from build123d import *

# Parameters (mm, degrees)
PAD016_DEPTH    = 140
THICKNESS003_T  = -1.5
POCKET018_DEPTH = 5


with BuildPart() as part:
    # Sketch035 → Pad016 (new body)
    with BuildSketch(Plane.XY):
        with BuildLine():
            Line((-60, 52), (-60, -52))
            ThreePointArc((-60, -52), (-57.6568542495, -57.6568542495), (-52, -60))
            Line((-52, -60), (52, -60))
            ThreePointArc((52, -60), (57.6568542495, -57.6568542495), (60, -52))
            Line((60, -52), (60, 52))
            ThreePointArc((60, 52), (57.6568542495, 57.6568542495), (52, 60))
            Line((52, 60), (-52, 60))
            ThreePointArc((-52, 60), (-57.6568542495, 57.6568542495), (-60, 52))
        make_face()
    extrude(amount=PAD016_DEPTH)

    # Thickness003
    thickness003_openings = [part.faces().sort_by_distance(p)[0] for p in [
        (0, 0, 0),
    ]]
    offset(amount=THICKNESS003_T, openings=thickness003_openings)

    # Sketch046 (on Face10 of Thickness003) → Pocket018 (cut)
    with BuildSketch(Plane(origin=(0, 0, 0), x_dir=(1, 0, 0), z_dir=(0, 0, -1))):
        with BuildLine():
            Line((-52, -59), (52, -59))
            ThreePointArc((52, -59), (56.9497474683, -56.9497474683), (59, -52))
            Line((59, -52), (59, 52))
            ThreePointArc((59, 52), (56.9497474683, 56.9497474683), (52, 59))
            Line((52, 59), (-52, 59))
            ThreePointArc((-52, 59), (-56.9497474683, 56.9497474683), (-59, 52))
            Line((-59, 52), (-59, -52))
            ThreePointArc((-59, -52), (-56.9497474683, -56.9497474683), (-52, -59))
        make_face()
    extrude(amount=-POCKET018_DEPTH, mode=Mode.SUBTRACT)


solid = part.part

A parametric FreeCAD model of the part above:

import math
import FreeCAD as App
import Part
import Sketcher
Q = App.Units.Quantity


def faces_at(feature, points):
    """Names of the faces that lie closest to the given points."""
    faces = feature.Shape.Faces
    near = lambda p: min(range(len(faces)), key=lambda i: faces[i].distToShape(Part.Vertex(*p))[0])
    return sorted({f"Face{near(p) + 1}" for p in points})

doc = App.newDocument("Part")
params = doc.addObject("Spreadsheet::Sheet", "Params")
for row, (alias, value) in enumerate([
    ("sketch1_radius", "8 mm"),
    ("sketch1_width", "104 mm"),
    ("pad1_length", "140 mm"),
    ("thickness_wall", "1.5 mm"),
    ("sketch2_radius", "7 mm"),
    ("sketch2_width", "104 mm"),
    ("pocket1_length", "5 mm"),
], start=1):
    params.set(f"A{row}", alias)
    params.set(f"B{row}", "=" + value)
    params.setAlias(f"B{row}", alias)

body = doc.addObject("PartDesign::Body", "Body")

# Sketch on XY plane
sketch1 = body.newObject("Sketcher::SketchObject", "Sketch")
sketch1.AttachmentSupport = (doc.getObject("XY_Plane"), [""])
sketch1.MapMode = "FlatFace"
sketch1.addGeometry([
    Part.LineSegment(App.Vector(-60, 52, 0), App.Vector(-60, -52, 0)),  # 0
    Part.ArcOfCircle(Part.Circle(App.Vector(-52, -52, 0), App.Vector(0, 0, 1), 8), math.radians(180), math.radians(270)),  # 1
    Part.LineSegment(App.Vector(-52, -60, 0), App.Vector(52, -60, 0)),  # 2
    Part.ArcOfCircle(Part.Circle(App.Vector(52, -52, 0), App.Vector(0, 0, 1), 8), math.radians(-90), math.radians(0)),  # 3
    Part.LineSegment(App.Vector(60, -52, 0), App.Vector(60, 52, 0)),  # 4
    Part.ArcOfCircle(Part.Circle(App.Vector(52, 52, 0), App.Vector(0, 0, 1), 8), math.radians(0), math.radians(90)),  # 5
    Part.LineSegment(App.Vector(52, 60, 0), App.Vector(-52, 60, 0)),  # 6
    Part.ArcOfCircle(Part.Circle(App.Vector(-52, 52, 0), App.Vector(0, 0, 1), 8), math.radians(90), math.radians(180)),  # 7
], False)
sketch1.addConstraint([
    Sketcher.Constraint("Tangent", 0, 2, 1, 1),
    Sketcher.Constraint("Tangent", 1, 2, 2, 1),
    Sketcher.Constraint("Tangent", 2, 2, 3, 1),
    Sketcher.Constraint("Tangent", 3, 2, 4, 1),
    Sketcher.Constraint("Tangent", 4, 2, 5, 1),
    Sketcher.Constraint("Tangent", 5, 2, 6, 1),
    Sketcher.Constraint("Tangent", 6, 2, 7, 1),
    Sketcher.Constraint("Tangent", 7, 2, 0, 1),
    Sketcher.Constraint("Vertical", 0),
    Sketcher.Constraint("Horizontal", 2),
    Sketcher.Constraint("Vertical", 4),
    Sketcher.Constraint("Horizontal", 6),
    Sketcher.Constraint("Equal", 1, 3),
    Sketcher.Constraint("Equal", 3, 5),
    Sketcher.Constraint("Equal", 5, 7),
    Sketcher.Constraint("Symmetric", 1, 3, 5, 3, -1, 1),
    Sketcher.Constraint("Equal", 6, 0),
    Sketcher.Constraint("Radius", 1, Q("8 mm")),
    Sketcher.Constraint("DistanceX", 2, 1, 2, 2, Q("104 mm")),
])
sketch1.setExpression("Constraints[17]", "Params.sketch1_radius")
sketch1.setExpression("Constraints[18]", "Params.sketch1_width")
pad1 = body.newObject("PartDesign::Pad", "Pad")
pad1.Profile = sketch1
pad1.setExpression("Length", "Params.pad1_length")
doc.recompute()

thickness = body.newObject("PartDesign::Thickness", "Thickness")
thickness.Base = (pad1, faces_at(pad1, [(0, 0, 0)]))
thickness.setExpression("Value", "Params.thickness_wall")
thickness.Reversed = True
thickness.Join = "Arc"

# Sketch on XY plane
sketch2 = body.newObject("Sketcher::SketchObject", "Sketch001")
sketch2.AttachmentSupport = (doc.getObject("XY_Plane"), [""])
sketch2.MapMode = "FlatFace"
sketch2.addGeometry([
    Part.LineSegment(App.Vector(-52, 59, 0), App.Vector(52, 59, 0)),  # 0
    Part.ArcOfCircle(Part.Circle(App.Vector(52, 52, 0), App.Vector(0, 0, 1), 7), math.radians(0), math.radians(90)),  # 1
    Part.LineSegment(App.Vector(59, 52, 0), App.Vector(59, -52, 0)),  # 2
    Part.ArcOfCircle(Part.Circle(App.Vector(52, -52, 0), App.Vector(0, 0, 1), 7), math.radians(-90), math.radians(0)),  # 3
    Part.LineSegment(App.Vector(52, -59, 0), App.Vector(-52, -59, 0)),  # 4
    Part.ArcOfCircle(Part.Circle(App.Vector(-52, -52, 0), App.Vector(0, 0, 1), 7), math.radians(180), math.radians(270)),  # 5
    Part.LineSegment(App.Vector(-59, -52, 0), App.Vector(-59, 52, 0)),  # 6
    Part.ArcOfCircle(Part.Circle(App.Vector(-52, 52, 0), App.Vector(0, 0, 1), 7), math.radians(90), math.radians(180)),  # 7
], False)
sketch2.addConstraint([
    Sketcher.Constraint("Tangent", 0, 2, 1, 2),
    Sketcher.Constraint("Tangent", 1, 1, 2, 1),
    Sketcher.Constraint("Tangent", 2, 2, 3, 2),
    Sketcher.Constraint("Tangent", 3, 1, 4, 1),
    Sketcher.Constraint("Tangent", 4, 2, 5, 2),
    Sketcher.Constraint("Tangent", 5, 1, 6, 1),
    Sketcher.Constraint("Tangent", 6, 2, 7, 2),
    Sketcher.Constraint("Tangent", 7, 1, 0, 1),
    Sketcher.Constraint("Horizontal", 0),
    Sketcher.Constraint("Vertical", 2),
    Sketcher.Constraint("Horizontal", 4),
    Sketcher.Constraint("Vertical", 6),
    Sketcher.Constraint("Equal", 1, 3),
    Sketcher.Constraint("Equal", 3, 5),
    Sketcher.Constraint("Equal", 5, 7),
    Sketcher.Constraint("Symmetric", 1, 3, 5, 3, -1, 1),
    Sketcher.Constraint("Equal", 4, 2),
    Sketcher.Constraint("Radius", 1, Q("7 mm")),
    Sketcher.Constraint("DistanceX", 0, 1, 0, 2, Q("104 mm")),
])
sketch2.setExpression("Constraints[17]", "Params.sketch2_radius")
sketch2.setExpression("Constraints[18]", "Params.sketch2_width")
pocket1 = body.newObject("PartDesign::Pocket", "Pocket")
pocket1.Profile = sketch2
pocket1.setExpression("Length", "Params.pocket1_length")
pocket1.Reversed = True

doc.recompute()
